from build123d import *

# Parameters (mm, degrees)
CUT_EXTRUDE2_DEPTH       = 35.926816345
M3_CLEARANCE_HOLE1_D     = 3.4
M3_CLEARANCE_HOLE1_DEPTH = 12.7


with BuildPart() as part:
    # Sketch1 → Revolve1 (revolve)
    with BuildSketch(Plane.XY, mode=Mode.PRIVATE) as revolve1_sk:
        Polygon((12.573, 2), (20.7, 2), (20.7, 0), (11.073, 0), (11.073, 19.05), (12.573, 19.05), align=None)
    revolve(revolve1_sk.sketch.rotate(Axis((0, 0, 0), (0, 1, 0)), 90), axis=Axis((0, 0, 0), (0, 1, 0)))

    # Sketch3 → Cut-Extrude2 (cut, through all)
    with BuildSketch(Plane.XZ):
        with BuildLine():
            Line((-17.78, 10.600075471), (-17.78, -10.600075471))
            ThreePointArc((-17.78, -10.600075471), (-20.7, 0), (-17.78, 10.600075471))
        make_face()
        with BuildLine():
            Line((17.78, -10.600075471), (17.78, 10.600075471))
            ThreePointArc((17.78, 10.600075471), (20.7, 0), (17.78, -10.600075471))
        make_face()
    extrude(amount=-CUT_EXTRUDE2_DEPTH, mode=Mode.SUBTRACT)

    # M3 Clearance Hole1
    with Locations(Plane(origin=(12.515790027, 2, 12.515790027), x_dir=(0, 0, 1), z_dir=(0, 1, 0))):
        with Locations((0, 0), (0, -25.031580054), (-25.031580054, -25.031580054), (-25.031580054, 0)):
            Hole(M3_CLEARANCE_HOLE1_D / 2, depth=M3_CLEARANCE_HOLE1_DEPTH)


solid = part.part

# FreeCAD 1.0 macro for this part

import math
import FreeCAD as App
import Part
import Sketcher
Q = App.Units.Quantity

doc = App.newDocument("Part")
body = doc.addObject("PartDesign::Body", "Body")

# Sketch on XY plane
sketch1 = body.newObject("Sketcher::SketchObject", "Sketch")
sketch1.AttachmentSupport = (doc.getObject("XY_Plane"), [""])
sketch1.MapMode = "FlatFace"
sketch1.addGeometry([
    Part.LineSegment(App.Vector(20.7, 2, 0), App.Vector(12.6, 2, 0)),  # 0
    Part.LineSegment(App.Vector(12.6, 2, 0), App.Vector(12.6, 19.1, 0)),  # 1
    Part.LineSegment(App.Vector(12.6, 19.1, 0), App.Vector(11.1, 19.1, 0)),  # 2
    Part.LineSegment(App.Vector(11.1, 19.1, 0), App.Vector(11.1, 0, 0)),  # 3
    Part.LineSegment(App.Vector(11.1, 0, 0), App.Vector(20.7, 0, 0)),  # 4
    Part.LineSegment(App.Vector(20.7, 0, 0), App.Vector(20.7, 2, 0)),  # 5
], False)
sketch1.addConstraint([
    Sketcher.Constraint("Coincident", 0, 2, 1, 1),
    Sketcher.Constraint("Coincident", 1, 2, 2, 1),
    Sketcher.Constraint("Coincident", 2, 2, 3, 1),
    Sketcher.Constraint("Coincident", 3, 2, 4, 1),
    Sketcher.Constraint("Coincident", 4, 2, 5, 1),
    Sketcher.Constraint("Coincident", 5, 2, 0, 1),
    Sketcher.Constraint("Horizontal", 0),
    Sketcher.Constraint("Vertical", 1),
    Sketcher.Constraint("Horizontal", 2),
    Sketcher.Constraint("Vertical", 3),
    Sketcher.Constraint("Horizontal", 4),
    Sketcher.Constraint("Vertical", 5),
    Sketcher.Constraint("PointOnObject", 3, 2, -1),
    Sketcher.Constraint("DistanceY", 5, 1, 5, 2, Q("2 mm")),
    Sketcher.Constraint("DistanceX", 2, 2, 2, 1, Q("1.5 mm")),
    Sketcher.Constraint("DistanceY", 1, 1, 1, 2, Q("17.05 mm")),
    Sketcher.Constraint("DistanceX", -1, 1, 4, 2, Q("20.7 mm")),
    Sketcher.Constraint("DistanceX", 0, 2, 0, 1, Q("8.127 mm")),
])
revolution = body.newObject("PartDesign::Revolution", "Revolution")
revolution.Profile = sketch1
revolution.ReferenceAxis = (sketch1, ["V_Axis"])
revolution.Angle = 360

# Sketch on XZ plane
sketch2 = body.newObject("Sketcher::SketchObject", "Sketch001")
sketch2.AttachmentSupport = (doc.getObject("XZ_Plane"), [""])
sketch2.MapMode = "FlatFace"
sketch2.addGeometry([
    Part.LineSegment(App.Vector(-18, -11, 0), App.Vector(-18, 11, 0)),
    Part.ArcOfCircle(Part.Circle(App.Vector(0, 0, 0), App.Vector(0, 0, 1), 21), math.radians(149), math.radians(211)),
    Part.LineSegment(App.Vector(18, 11, 0), App.Vector(18, -11, 0)),
    Part.ArcOfCircle(Part.Circle(App.Vector(0, 0, 0), App.Vector(0, 0, 1), 21), math.radians(-31), math.radians(31)),
], False)
sketch2.addConstraint([
    Sketcher.Constraint("Coincident", 0, 1, 1, 2),
    Sketcher.Constraint("Coincident", 1, 1, 0, 2),
    Sketcher.Constraint("Coincident", 2, 1, 3, 2),
    Sketcher.Constraint("Coincident", 3, 1, 2, 2),
    Sketcher.Constraint("Vertical", 0),
    Sketcher.Constraint("Vertical", 2),
    Sketcher.Constraint("Coincident", 1, 3, -1, 1),
    Sketcher.Constraint("Coincident", 3, 3, -1, 1),
    Sketcher.Constraint("Equal", 1, 3),
    Sketcher.Constraint("Horizontal", 1, 1, 2, 1),
    Sketcher.Constraint("Radius", 1, Q("20.7 mm")),
    Sketcher.Constraint("DistanceX", 0, 1, -1, 1, Q("17.78 mm")),
])
pocket1 = body.newObject("PartDesign::Pocket", "Pocket")
pocket1.Profile = sketch2
pocket1.Type = "ThroughAll"

# Sketch on XZ plane
sketch3 = body.newObject("Sketcher::SketchObject", "Sketch002")
sketch3.AttachmentSupport = (doc.getObject("XZ_Plane"), [""])
sketch3.MapMode = "FlatFace"
sketch3.AttachmentOffset = App.Placement(App.Vector(0, 0, -2), App.Rotation())
sketch3.addGeometry([
    Part.Circle(App.Vector(12.5, 12.5, 0), App.Vector(0, 0, 1), 1.7),
    Part.Circle(App.Vector(-12.5, 12.5, 0), App.Vector(0, 0, 1), 1.7),
    Part.Circle(App.Vector(-12.5, -12.5, 0), App.Vector(0, 0, 1), 1.7),
    Part.Circle(App.Vector(12.5, -12.5, 0), App.Vector(0, 0, 1), 1.7),
], False)
sketch3.addConstraint([
    Sketcher.Constraint("Equal", 0, 1),
    Sketcher.Constraint("Equal", 1, 2),
    Sketcher.Constraint("Equal", 2, 3),
    Sketcher.Constraint("Symmetric", 0, 3, 2, 3, -1, 1),
    Sketcher.Constraint("Symmetric", 1, 3, 3, 3, -1, 1),
    Sketcher.Constraint("Symmetric", 0, 3, 1, 3, -2),
    Sketcher.Constraint("Diameter", 0, Q("3.4 mm")),
    Sketcher.Constraint("DistanceX", -1, 1, 0, 3, Q("12.51579 mm")),
    Sketcher.Constraint("DistanceY", -1, 1, 0, 3, Q("12.51579 mm")),
])
doc.recompute()
hole = body.newObject("PartDesign::Hole", "Hole")
hole.Profile = sketch3
hole.ThreadType = "None"
hole.Diameter = 3.4
hole.DepthType = "Dimension"
hole.Depth = 12.7
hole.DrillPoint = "Flat"
hole.Reversed = True

doc.recompute()
